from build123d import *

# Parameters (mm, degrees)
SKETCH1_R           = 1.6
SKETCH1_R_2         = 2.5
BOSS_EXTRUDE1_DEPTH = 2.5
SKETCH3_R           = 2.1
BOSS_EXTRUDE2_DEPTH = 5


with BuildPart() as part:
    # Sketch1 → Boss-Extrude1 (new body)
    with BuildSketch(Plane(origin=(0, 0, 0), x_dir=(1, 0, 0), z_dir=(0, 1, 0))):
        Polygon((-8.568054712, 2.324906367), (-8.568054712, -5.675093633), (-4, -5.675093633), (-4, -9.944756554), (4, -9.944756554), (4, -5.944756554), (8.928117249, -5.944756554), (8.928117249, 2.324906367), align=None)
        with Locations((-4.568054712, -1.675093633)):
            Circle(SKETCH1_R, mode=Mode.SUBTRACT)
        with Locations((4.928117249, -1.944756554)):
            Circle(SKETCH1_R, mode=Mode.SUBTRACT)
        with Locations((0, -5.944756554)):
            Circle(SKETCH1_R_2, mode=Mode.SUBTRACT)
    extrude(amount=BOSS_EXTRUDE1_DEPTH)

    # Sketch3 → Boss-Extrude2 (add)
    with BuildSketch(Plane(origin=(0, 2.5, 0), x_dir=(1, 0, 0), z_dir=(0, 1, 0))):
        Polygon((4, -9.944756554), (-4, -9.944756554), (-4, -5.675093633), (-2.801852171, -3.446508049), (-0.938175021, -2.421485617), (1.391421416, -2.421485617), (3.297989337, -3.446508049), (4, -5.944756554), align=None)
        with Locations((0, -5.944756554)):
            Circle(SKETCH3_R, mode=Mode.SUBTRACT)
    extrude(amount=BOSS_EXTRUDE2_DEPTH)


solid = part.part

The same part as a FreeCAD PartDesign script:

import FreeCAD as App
import Part
import Sketcher
from FreeCAD import Vector


def add_polygon(sketch, points):
    """Adds a closed chain of lines whose ends are joined by coincident constraints."""
    first, n = sketch.GeometryCount, len(points)
    for a, b in zip(points, points[1:] + points[:1]):
        sketch.addGeometry(Part.LineSegment(App.Vector(*a, 0), App.Vector(*b, 0)), False)
    for i in range(n):
        sketch.addConstraint(Sketcher.Constraint("Coincident", first + i, 2, first + (i + 1) % n, 1))

doc = App.newDocument("Part")
body = doc.addObject("PartDesign::Body", "Body")

# Sketch on XZ plane
sketch1 = doc.addObject("Sketcher::SketchObject", "Sketch")
body.addObject(sketch1)
sketch1.AttachmentSupport = (doc.XZ_Plane, [""])
sketch1.MapMode = "FlatFace"
add_polygon(sketch1, [(-8.568055, -2.324906), (-8.568055, 5.675094), (-4, 5.675094), (-4, 9.944757), (4, 9.944757), (4, 5.944757), (8.928117, 5.944757), (8.928117, -2.324906)])  # lines 0-7
sketch1.addGeometry(Part.Circle(Vector(0, 5.944757, 0), Vector(0, 0, 1), 2.5), False)  # 8
sketch1.addGeometry(Part.Circle(Vector(-4.568055, 1.675094, 0), Vector(0, 0, 1), 1.6), False)  # 9
sketch1.addGeometry(Part.Circle(Vector(4.928117, 1.944757, 0), Vector(0, 0, 1), 1.6), False)  # 10
sketch1.addConstraint([
    Sketcher.Constraint("Vertical", 0),
    Sketcher.Constraint("Horizontal", 1),
    Sketcher.Constraint("Vertical", 2),
    Sketcher.Constraint("Horizontal", 3),
    Sketcher.Constraint("Vertical", 4),
    Sketcher.Constraint("Horizontal", 5),
    Sketcher.Constraint("Vertical", 6),
    Sketcher.Constraint("Horizontal", 7),
    Sketcher.Constraint("Equal", 9, 10),
    Sketcher.Constraint("PointOnObject", 8, 3, -2),
    Sketcher.Constraint("Horizontal", 8, 3, 4, 2),
    Sketcher.Constraint("Equal", 3, 0),
    Sketcher.Constraint("Diameter", 8, 5.0),
    Sketcher.Constraint("Diameter", 9, 3.2),
    Sketcher.Constraint("DistanceX", 3, 1, 3, 2, 8.0),
    Sketcher.Constraint("DistanceY", 4, 2, 4, 1, 4.0),
    Sketcher.Constraint("DistanceX", 1, 2, -1, 1, 4.0),
    Sketcher.Constraint("DistanceY", 10, 3, 8, 3, 4.0),
    Sketcher.Constraint("DistanceX", 0, 2, 9, 3, 4.0),
    Sketcher.Constraint("DistanceY", 9, 3, 0, 2, 4.0),
    Sketcher.Constraint("DistanceX", 10, 3, 5, 2, 4.0),
    Sketcher.Constraint("DistanceX", 7, 2, 7, 1, 17.496172),
    Sketcher.Constraint("DistanceX", 1, 1, 1, 2, 4.568055),
    Sketcher.Constraint("DistanceY", 2, 1, 2, 2, 4.269663),
    Sketcher.Constraint("DistanceY", -1, 1, 8, 3, 5.944757),
])
pad1 = doc.addObject("PartDesign::Pad", "Pad")
body.addObject(pad1)
pad1.Profile = sketch1
pad1.Length = 2.5
pad1.Reversed = True

# Sketch on XZ plane
sketch2 = doc.addObject("Sketcher::SketchObject", "Sketch001")
body.addObject(sketch2)
sketch2.AttachmentSupport = (doc.XZ_Plane, [""])
sketch2.MapMode = "FlatFace"
sketch2.AttachmentOffset = App.Placement(Vector(0, 0, -2.5), App.Rotation())
add_polygon(sketch2, [(-4, 9.944757), (4, 9.944757), (4, 5.944757), (3.297989, 3.446508), (1.391421, 2.421486), (-0.938175, 2.421486), (-2.801852, 3.446508), (-4, 5.675094)])  # lines 0-7
sketch2.addGeometry(Part.Circle(Vector(0, 5.944757, 0), Vector(0, 0, 1), 2.1), False)  # 8
sketch2.addConstraint([
    Sketcher.Constraint("Horizontal", 0),
    Sketcher.Constraint("Vertical", 1),
    Sketcher.Constraint("Horizontal", 4),
    Sketcher.Constraint("Vertical", 7),
    Sketcher.Constraint("PointOnObject", 8, 3, -2),
    Sketcher.Constraint("Perpendicular", 3, 6),
    Sketcher.Constraint("Horizontal", 8, 3, 1, 2),
    Sketcher.Constraint("Horizontal", 2, 2, 5, 2),
    Sketcher.Constraint("Diameter", 8, 4.2),
    Sketcher.Constraint("DistanceX", 0, 1, 0, 2, 8.0),
    Sketcher.Constraint("DistanceY", 1, 2, 1, 1, 4.0),
    Sketcher.Constraint("DistanceX", -1, 1, 0, 2, 4.0),
    Sketcher.Constraint("Distance", 3, 2.164641),
    Sketcher.Constraint("Distance", 5, 2.126961),
    Sketcher.Constraint("DistanceX", 4, 2, 4, 1, 2.329596),
    Sketcher.Constraint("DistanceY", 7, 1, 7, 2, 4.269663),
    Sketcher.Constraint("DistanceX", -1, 1, 2, 2, 3.297989),
    Sketcher.Constraint("DistanceY", -1, 1, 2, 2, 3.446508),
    Sketcher.Constraint("DistanceX", -1, 1, 3, 2, 1.391421),
])
pad2 = doc.addObject("PartDesign::Pad", "Pad001")
body.addObject(pad2)
pad2.Profile = sketch2
pad2.Length = 5
pad2.Reversed = True

doc.recompute()
